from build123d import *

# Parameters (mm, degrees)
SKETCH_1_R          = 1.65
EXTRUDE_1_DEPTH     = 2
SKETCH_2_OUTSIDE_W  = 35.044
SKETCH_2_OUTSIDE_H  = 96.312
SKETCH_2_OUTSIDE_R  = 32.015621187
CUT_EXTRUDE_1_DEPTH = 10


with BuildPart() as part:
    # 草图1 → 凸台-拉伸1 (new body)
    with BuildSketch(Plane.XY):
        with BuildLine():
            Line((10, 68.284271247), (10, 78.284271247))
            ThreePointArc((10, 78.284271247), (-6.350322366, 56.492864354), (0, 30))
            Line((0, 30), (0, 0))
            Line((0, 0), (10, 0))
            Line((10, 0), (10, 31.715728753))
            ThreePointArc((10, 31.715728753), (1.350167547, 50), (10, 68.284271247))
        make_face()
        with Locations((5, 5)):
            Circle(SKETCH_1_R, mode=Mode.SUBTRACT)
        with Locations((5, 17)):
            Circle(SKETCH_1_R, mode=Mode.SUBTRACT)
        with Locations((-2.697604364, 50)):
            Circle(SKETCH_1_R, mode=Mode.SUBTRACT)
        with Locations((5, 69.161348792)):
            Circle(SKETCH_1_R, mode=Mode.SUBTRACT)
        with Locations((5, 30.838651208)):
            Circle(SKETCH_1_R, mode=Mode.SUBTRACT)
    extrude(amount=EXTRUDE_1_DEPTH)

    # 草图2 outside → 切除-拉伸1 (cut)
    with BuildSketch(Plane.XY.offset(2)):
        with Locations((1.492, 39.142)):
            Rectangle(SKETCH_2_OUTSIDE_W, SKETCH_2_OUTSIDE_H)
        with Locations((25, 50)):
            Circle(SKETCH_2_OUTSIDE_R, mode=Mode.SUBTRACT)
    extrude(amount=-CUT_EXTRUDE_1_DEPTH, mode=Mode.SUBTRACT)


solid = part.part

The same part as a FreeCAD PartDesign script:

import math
import FreeCAD as App
import Part
import Sketcher

V = App.Vector
Q = App.Units.Quantity

doc = App.newDocument("Part")
body = doc.addObject("PartDesign::Body", "Body")

sketch1 = body.newObject("Sketcher::SketchObject", "Sketch")
sketch1.AttachmentSupport = (doc.getObject("XY_Plane"), [""])
sketch1.MapMode = "FlatFace"
sketch1.addGeometry(Part.LineSegment(V(10, 68.3, 0), V(10, 78.3, 0)), False)
sketch1.addGeometry(Part.ArcOfCircle(Part.Circle(V(25, 50, 0), V(0, 0, 1), 32), math.radians(118), math.radians(219)), False)
sketch1.addGeometry(Part.LineSegment(V(0, 30, 0), V(0, 0, 0)), False)
sketch1.addGeometry(Part.LineSegment(V(0, 0, 0), V(10, 0, 0)), False)
sketch1.addGeometry(Part.LineSegment(V(10, 0, 0), V(10, 31.7, 0)), False)
sketch1.addGeometry(Part.ArcOfCircle(Part.Circle(V(25, 50, 0), V(0, 0, 1), 23.6), math.radians(129), math.radians(231)), False)
sketch1.addGeometry(Part.Circle(V(5, 5, 0), V(0, 0, 1), 1.6), False)
sketch1.addGeometry(Part.Circle(V(5, 17, 0), V(0, 0, 1), 1.6), False)
sketch1.addGeometry(Part.Circle(V(5, 30.8, 0), V(0, 0, 1), 1.6), False)
sketch1.addGeometry(Part.Circle(V(-2.7, 50, 0), V(0, 0, 1), 1.6), False)
sketch1.addGeometry(Part.Circle(V(5, 69.2, 0), V(0, 0, 1), 1.6), False)
sketch1.addConstraint(Sketcher.Constraint("Coincident", 0, 2, 1, 1))
sketch1.addConstraint(Sketcher.Constraint("Coincident", 1, 2, 2, 1))
sketch1.addConstraint(Sketcher.Constraint("Coincident", 2, 2, 3, 1))
sketch1.addConstraint(Sketcher.Constraint("Coincident", 3, 2, 4, 1))
sketch1.addConstraint(Sketcher.Constraint("Coincident", 4, 2, 5, 2))
sketch1.addConstraint(Sketcher.Constraint("Coincident", 5, 1, 0, 1))
sketch1.addConstraint(Sketcher.Constraint("Vertical", 0))
sketch1.addConstraint(Sketcher.Constraint("Vertical", 2))
sketch1.addConstraint(Sketcher.Constraint("Horizontal", 3))
sketch1.addConstraint(Sketcher.Constraint("Vertical", 4))
sketch1.addConstraint(Sketcher.Constraint("Coincident", 2, 2, -1, 1))
sketch1.addConstraint(Sketcher.Constraint("Coincident", 5, 3, 1, 3))
sketch1.addConstraint(Sketcher.Constraint("Equal", 6, 7))
sketch1.addConstraint(Sketcher.Constraint("Equal", 7, 8))
sketch1.addConstraint(Sketcher.Constraint("Equal", 8, 9))
sketch1.addConstraint(Sketcher.Constraint("Equal", 9, 10))
sketch1.addConstraint(Sketcher.Constraint("Horizontal", 5, 3, 9, 3))
sketch1.addConstraint(Sketcher.Constraint("Vertical", 6, 3, 7, 3))
sketch1.addConstraint(Sketcher.Constraint("Vertical", 7, 3, 8, 3))
sketch1.addConstraint(Sketcher.Constraint("Vertical", 8, 3, 10, 3))
sketch1.addConstraint(Sketcher.Constraint("Vertical", 0, 2, 3, 2))
sketch1.addConstraint(Sketcher.Constraint("Equal", 3, 0))
sketch1.addConstraint(Sketcher.Constraint("Diameter", 6, Q("3.3 mm")))
sketch1.addConstraint(Sketcher.Constraint("DistanceX", 3, 1, 3, 2, Q("10 mm")))
sketch1.addConstraint(Sketcher.Constraint("DistanceY", 2, 2, 2, 1, Q("30 mm")))
sketch1.addConstraint(Sketcher.Constraint("DistanceX", -1, 1, 1, 3, Q("25 mm")))
sketch1.addConstraint(Sketcher.Constraint("DistanceY", -1, 1, 1, 3, Q("50 mm")))
sketch1.addConstraint(Sketcher.Constraint("DistanceX", -1, 1, 6, 3, Q("5 mm")))
sketch1.addConstraint(Sketcher.Constraint("DistanceY", -1, 1, 6, 3, Q("5 mm")))
sketch1.addConstraint(Sketcher.Constraint("DistanceY", -1, 1, 7, 3, Q("17 mm")))
sketch1.addConstraint(Sketcher.Constraint("DistanceY", -1, 1, 8, 3, Q("30.838651 mm")))
sketch1.addConstraint(Sketcher.Constraint("DistanceY", -1, 1, 10, 3, Q("69.161349 mm")))
sketch1.addConstraint(Sketcher.Constraint("DistanceX", 9, 3, -1, 1, Q("2.697604 mm")))
pad1 = body.newObject("PartDesign::Pad", "Pad")
pad1.Profile = sketch1
pad1.Length = 2

sketch2 = body.newObject("Sketcher::SketchObject", "Sketch001")
sketch2.AttachmentSupport = (doc.getObject("XY_Plane"), [""])
sketch2.MapMode = "FlatFace"
sketch2.AttachmentOffset = App.Placement(V(0, 0, 2), App.Rotation())
sketch2.addGeometry(Part.LineSegment(V(-16, 87, 0), V(-16, -9, 0)), False)
sketch2.addGeometry(Part.LineSegment(V(-16, -9, 0), V(19, -9, 0)), False)
sketch2.addGeometry(Part.LineSegment(V(19, -9, 0), V(19, 19, 0)), False)
sketch2.addGeometry(Part.ArcOfCircle(Part.Circle(V(25, 50, 0), V(0, 0, 1), 32), math.radians(101), math.radians(259)), False)
sketch2.addGeometry(Part.LineSegment(V(19, 81, 0), V(19, 87, 0)), False)
sketch2.addGeometry(Part.LineSegment(V(19, 87, 0), V(-16, 87, 0)), False)
sketch2.addConstraint(Sketcher.Constraint("Coincident", 0, 2, 1, 1))
sketch2.addConstraint(Sketcher.Constraint("Coincident", 1, 2, 2, 1))
sketch2.addConstraint(Sketcher.Constraint("Coincident", 2, 2, 3, 2))
sketch2.addConstraint(Sketcher.Constraint("Coincident", 3, 1, 4, 1))
sketch2.addConstraint(Sketcher.Constraint("Coincident", 4, 2, 5, 1))
sketch2.addConstraint(Sketcher.Constraint("Coincident", 5, 2, 0, 1))
sketch2.addConstraint(Sketcher.Constraint("Vertical", 0))
sketch2.addConstraint(Sketcher.Constraint("Horizontal", 1))
sketch2.addConstraint(Sketcher.Constraint("Vertical", 2))
sketch2.addConstraint(Sketcher.Constraint("Vertical", 4))
sketch2.addConstraint(Sketcher.Constraint("Horizontal", 5))
sketch2.addConstraint(Sketcher.Constraint("Vertical", 2, 2, 3, 1))
sketch2.addConstraint(Sketcher.Constraint("DistanceX", -1, 1, 3, 3, Q("25 mm")))
sketch2.addConstraint(Sketcher.Constraint("DistanceY", -1, 1, 3, 3, Q("50 mm")))
sketch2.addConstraint(Sketcher.Constraint("DistanceX", 1, 1, 1, 2, Q("35.044 mm")))
sketch2.addConstraint(Sketcher.Constraint("DistanceY", 0, 2, 0, 1, Q("96.312 mm")))
sketch2.addConstraint(Sketcher.Constraint("DistanceX", 0, 2, -1, 1, Q("16.03 mm")))
sketch2.addConstraint(Sketcher.Constraint("Radius", 3, Q("32.015621 mm")))
sketch2.addConstraint(Sketcher.Constraint("DistanceY", 0, 2, -1, 1, Q("9.014 mm")))
pocket1 = body.newObject("PartDesign::Pocket", "Pocket")
pocket1.Profile = sketch2
pocket1.Length = 10

doc.recompute()
